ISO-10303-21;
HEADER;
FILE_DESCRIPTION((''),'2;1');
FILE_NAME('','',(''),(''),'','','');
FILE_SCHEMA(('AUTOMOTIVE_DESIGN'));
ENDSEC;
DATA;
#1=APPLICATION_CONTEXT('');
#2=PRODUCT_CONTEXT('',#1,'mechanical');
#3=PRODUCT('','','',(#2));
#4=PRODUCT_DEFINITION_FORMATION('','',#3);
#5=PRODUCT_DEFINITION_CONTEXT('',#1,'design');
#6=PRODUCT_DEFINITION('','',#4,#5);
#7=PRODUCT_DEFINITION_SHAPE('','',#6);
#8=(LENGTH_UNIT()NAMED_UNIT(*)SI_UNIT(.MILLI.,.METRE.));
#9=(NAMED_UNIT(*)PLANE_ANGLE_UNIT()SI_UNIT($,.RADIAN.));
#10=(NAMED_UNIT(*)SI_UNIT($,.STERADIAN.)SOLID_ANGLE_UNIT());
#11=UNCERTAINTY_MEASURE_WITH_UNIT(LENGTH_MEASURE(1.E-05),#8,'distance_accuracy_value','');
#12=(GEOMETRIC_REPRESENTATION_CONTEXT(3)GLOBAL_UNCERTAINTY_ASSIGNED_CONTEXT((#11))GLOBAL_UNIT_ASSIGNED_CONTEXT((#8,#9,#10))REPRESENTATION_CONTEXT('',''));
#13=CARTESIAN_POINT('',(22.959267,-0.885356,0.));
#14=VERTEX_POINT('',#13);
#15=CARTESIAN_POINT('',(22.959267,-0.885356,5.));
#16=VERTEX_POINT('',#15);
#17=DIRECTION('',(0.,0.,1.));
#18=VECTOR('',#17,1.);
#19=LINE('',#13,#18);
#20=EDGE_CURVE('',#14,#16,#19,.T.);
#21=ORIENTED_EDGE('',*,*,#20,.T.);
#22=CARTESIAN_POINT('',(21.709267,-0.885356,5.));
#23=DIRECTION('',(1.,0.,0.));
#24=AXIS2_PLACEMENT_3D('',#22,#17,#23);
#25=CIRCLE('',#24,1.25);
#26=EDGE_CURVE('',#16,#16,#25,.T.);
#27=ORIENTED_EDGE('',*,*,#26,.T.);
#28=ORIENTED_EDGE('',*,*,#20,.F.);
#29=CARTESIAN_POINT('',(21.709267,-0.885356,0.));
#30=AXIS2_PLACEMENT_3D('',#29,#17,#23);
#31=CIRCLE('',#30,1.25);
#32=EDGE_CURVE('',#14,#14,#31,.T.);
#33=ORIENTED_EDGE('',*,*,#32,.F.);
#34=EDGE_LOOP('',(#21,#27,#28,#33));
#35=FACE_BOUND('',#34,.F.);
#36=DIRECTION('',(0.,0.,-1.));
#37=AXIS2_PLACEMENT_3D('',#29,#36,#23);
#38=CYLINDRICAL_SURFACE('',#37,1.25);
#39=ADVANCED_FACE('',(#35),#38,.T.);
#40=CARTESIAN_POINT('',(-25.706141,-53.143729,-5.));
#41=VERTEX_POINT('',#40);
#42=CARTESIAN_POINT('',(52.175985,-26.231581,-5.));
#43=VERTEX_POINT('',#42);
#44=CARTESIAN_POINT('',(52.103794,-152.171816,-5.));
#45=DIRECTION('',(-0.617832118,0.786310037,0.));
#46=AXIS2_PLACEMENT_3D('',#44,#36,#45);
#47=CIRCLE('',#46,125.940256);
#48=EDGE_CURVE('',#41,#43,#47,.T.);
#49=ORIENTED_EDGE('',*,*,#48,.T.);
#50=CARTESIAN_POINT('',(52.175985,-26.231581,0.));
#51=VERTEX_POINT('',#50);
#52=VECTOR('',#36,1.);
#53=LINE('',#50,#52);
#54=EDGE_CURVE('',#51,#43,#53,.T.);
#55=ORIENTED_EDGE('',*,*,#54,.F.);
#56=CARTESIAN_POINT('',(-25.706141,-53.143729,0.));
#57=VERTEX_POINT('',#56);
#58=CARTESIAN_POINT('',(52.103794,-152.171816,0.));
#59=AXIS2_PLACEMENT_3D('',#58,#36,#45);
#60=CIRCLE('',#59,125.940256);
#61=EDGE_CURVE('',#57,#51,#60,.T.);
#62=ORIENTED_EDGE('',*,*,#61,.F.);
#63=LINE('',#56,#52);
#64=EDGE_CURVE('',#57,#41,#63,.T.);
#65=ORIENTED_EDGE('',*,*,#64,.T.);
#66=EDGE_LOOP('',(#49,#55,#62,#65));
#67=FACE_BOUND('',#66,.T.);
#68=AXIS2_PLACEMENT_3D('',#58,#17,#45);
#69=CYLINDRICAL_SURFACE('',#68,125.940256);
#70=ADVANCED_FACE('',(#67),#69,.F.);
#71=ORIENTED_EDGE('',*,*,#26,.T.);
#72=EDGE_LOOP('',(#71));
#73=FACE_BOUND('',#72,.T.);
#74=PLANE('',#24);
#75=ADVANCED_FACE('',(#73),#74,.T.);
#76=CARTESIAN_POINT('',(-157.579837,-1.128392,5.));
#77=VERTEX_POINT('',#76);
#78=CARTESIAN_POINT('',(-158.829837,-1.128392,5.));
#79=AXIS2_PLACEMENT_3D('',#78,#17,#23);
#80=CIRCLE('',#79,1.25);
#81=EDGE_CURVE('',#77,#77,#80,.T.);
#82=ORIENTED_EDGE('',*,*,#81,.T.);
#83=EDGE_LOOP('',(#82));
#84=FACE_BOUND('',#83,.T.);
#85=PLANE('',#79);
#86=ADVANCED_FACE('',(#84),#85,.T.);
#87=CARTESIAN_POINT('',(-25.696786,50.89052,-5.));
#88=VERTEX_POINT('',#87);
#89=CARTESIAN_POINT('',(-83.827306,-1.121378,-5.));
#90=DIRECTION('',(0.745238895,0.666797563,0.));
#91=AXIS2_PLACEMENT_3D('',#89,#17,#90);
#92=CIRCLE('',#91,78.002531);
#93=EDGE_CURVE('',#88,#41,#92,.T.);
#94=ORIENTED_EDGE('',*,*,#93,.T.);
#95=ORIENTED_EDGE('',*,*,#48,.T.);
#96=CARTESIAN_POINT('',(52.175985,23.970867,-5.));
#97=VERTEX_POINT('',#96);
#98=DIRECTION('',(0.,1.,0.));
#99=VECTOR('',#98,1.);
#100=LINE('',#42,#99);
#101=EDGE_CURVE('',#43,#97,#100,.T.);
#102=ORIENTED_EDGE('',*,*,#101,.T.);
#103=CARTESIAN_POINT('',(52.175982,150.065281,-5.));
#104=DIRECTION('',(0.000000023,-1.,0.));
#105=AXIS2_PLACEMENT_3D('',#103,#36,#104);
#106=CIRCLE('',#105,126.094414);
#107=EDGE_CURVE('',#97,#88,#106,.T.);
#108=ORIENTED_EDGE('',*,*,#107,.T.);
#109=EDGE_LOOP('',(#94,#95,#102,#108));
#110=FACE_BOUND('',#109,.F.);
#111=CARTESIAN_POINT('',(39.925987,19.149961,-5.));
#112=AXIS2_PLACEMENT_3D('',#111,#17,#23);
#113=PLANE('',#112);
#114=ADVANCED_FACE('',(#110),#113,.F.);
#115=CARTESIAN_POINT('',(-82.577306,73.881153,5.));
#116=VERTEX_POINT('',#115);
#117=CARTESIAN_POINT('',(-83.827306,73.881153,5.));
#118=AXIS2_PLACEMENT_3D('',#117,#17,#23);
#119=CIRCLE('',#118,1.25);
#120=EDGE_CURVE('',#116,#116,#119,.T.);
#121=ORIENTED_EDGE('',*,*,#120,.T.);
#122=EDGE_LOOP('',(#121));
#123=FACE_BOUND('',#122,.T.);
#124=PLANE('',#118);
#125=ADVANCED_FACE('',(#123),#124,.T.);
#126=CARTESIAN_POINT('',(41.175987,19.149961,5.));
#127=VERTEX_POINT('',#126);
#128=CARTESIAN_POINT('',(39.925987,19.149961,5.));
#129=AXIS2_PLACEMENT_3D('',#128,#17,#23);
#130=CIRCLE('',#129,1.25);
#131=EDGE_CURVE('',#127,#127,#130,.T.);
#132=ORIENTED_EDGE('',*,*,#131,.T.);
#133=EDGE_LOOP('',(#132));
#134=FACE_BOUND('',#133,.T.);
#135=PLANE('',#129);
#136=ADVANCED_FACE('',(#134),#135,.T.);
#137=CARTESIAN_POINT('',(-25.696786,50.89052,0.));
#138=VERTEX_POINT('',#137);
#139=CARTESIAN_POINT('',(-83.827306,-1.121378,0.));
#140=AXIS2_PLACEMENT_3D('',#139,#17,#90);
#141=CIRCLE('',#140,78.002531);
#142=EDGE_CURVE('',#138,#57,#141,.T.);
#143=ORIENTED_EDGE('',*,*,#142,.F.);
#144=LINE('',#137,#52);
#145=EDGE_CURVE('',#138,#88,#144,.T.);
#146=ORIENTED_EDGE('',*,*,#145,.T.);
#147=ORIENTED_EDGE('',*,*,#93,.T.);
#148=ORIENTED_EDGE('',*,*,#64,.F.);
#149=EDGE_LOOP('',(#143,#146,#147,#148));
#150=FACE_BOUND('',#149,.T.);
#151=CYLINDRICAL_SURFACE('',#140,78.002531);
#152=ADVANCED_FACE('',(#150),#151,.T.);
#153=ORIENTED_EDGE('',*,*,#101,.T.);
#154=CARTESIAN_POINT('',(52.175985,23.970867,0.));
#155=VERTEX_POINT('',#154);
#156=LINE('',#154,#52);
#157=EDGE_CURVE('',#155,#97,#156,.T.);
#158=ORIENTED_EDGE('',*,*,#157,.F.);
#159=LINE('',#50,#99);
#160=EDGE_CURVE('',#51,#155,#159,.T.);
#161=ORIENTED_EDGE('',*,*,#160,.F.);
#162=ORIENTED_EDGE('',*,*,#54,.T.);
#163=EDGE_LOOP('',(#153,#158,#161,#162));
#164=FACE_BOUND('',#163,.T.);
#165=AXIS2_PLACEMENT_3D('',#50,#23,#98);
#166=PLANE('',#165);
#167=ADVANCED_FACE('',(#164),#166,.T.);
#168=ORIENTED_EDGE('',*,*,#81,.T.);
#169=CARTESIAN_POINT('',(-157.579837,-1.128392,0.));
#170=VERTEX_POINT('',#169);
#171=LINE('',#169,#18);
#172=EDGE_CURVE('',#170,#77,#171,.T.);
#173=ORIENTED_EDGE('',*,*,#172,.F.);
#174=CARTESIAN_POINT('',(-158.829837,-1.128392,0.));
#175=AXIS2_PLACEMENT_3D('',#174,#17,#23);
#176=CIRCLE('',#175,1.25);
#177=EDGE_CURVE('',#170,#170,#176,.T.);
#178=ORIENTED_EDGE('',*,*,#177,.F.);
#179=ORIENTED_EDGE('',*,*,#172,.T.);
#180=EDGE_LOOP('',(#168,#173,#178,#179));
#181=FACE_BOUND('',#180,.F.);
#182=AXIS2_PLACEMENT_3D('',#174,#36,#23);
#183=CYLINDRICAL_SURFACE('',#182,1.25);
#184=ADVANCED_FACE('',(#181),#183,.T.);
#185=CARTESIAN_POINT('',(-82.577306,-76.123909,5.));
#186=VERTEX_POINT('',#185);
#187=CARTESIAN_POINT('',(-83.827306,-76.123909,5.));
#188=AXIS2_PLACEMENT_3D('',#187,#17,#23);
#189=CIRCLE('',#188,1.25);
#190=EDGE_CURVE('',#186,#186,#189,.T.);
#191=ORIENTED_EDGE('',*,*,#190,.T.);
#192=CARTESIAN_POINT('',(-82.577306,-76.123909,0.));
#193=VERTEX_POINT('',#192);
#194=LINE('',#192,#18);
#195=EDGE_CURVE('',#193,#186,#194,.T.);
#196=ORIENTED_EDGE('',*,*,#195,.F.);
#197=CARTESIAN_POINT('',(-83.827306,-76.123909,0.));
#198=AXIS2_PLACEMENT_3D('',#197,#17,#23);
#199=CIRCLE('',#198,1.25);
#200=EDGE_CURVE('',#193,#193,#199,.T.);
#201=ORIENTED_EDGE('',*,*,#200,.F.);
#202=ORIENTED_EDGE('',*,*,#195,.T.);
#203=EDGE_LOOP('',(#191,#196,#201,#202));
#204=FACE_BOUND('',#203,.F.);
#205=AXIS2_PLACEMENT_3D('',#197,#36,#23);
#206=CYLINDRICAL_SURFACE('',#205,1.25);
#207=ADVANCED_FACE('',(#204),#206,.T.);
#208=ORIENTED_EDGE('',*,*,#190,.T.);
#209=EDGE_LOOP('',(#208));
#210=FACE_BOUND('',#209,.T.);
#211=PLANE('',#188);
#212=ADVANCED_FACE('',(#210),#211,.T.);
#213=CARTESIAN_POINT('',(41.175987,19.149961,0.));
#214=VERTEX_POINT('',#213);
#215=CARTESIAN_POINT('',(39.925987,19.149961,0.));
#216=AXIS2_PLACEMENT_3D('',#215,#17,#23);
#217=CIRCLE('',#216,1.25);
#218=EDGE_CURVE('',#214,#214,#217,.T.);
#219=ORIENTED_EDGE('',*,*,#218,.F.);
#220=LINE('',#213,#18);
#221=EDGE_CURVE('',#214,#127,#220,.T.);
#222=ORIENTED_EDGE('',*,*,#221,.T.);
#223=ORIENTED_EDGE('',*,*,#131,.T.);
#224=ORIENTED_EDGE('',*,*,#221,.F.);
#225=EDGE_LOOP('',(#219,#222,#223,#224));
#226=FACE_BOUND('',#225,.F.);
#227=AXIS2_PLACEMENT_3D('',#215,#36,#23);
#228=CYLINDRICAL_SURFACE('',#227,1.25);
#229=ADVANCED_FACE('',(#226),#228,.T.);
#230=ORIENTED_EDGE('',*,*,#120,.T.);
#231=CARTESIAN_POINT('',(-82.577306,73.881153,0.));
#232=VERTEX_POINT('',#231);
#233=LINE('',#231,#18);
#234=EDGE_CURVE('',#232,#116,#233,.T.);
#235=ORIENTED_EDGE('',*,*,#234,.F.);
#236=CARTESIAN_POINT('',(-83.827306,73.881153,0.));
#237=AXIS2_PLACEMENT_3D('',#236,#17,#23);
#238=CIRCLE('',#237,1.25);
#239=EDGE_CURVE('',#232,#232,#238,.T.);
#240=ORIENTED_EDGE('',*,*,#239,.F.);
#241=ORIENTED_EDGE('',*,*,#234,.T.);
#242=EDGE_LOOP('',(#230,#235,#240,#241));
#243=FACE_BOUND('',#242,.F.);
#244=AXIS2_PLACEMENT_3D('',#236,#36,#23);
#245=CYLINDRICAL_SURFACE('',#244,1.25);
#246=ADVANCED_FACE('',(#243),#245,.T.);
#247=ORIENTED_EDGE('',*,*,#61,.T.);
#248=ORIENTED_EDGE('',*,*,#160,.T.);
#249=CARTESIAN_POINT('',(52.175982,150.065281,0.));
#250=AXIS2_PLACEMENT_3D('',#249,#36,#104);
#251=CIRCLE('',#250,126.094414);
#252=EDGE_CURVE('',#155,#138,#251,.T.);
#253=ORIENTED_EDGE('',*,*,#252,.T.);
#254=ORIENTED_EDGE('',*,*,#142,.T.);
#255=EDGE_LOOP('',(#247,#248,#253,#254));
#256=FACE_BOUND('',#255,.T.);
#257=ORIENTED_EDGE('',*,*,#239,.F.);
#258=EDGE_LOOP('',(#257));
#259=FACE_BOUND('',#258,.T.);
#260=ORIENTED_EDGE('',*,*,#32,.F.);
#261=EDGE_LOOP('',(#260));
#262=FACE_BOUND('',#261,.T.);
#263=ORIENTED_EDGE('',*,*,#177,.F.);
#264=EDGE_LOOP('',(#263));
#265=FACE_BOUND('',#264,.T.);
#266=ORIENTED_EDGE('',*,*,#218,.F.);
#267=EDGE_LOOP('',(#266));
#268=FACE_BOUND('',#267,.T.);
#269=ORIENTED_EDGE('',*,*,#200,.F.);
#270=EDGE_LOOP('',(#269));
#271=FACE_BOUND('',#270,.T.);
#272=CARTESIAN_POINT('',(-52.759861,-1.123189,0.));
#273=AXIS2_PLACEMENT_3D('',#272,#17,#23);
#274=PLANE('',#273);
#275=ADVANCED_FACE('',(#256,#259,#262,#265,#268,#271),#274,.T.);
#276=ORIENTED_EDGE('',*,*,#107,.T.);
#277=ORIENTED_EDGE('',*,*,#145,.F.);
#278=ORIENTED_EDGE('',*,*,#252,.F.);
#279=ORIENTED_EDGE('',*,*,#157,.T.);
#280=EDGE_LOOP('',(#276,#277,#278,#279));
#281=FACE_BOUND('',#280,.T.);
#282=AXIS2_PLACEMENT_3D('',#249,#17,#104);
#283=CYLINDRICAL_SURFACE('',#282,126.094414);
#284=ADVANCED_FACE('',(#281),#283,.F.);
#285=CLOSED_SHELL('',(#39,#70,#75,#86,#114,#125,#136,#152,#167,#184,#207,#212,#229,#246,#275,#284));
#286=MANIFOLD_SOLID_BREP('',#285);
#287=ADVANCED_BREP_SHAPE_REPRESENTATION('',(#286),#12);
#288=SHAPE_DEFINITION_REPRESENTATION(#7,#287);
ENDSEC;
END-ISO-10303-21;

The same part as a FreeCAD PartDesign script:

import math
import FreeCAD as App
import Part
import Sketcher
from FreeCAD import Vector

doc = App.newDocument("Part")
body = doc.addObject("PartDesign::Body", "Body")

sketch1 = body.newObject("Sketcher::SketchObject", "Sketch")
sketch1.AttachmentSupport = (doc.getObject("XY_Plane"), [""])
sketch1.MapMode = "FlatFace"
sketch1.addGeometry([
    Part.ArcOfCircle(Part.Circle(Vector(52.2, 150.1, 0), Vector(0, 0, 1), 126.1), math.radians(-128), math.radians(-90)),
    Part.ArcOfCircle(Part.Circle(Vector(-83.8, -1.1, 0), Vector(0, 0, 1), 78), math.radians(42), math.radians(318)),
    Part.ArcOfCircle(Part.Circle(Vector(52.1, -152.2, 0), Vector(0, 0, 1), 125.9), math.radians(90), math.radians(128)),
    Part.LineSegment(Vector(52.2, -26.2, 0), Vector(52.2, 24, 0)),
    Part.Circle(Vector(-83.8, -76.1, 0), Vector(0, 0, 1), 1.2),
    Part.Circle(Vector(-158.8, -1.1, 0), Vector(0, 0, 1), 1.2),
    Part.Circle(Vector(-83.8, 73.9, 0), Vector(0, 0, 1), 1.2),
    Part.Circle(Vector(21.7, -0.9, 0), Vector(0, 0, 1), 1.2),
    Part.Circle(Vector(39.9, 19.1, 0), Vector(0, 0, 1), 1.2),
], False)
sketch1.addConstraint([
    Sketcher.Constraint("Coincident", 0, 1, 1, 1),
    Sketcher.Constraint("Coincident", 1, 2, 2, 2),
    Sketcher.Constraint("Coincident", 2, 1, 3, 1),
    Sketcher.Constraint("Coincident", 3, 2, 0, 2),
    Sketcher.Constraint("Vertical", 3),
    Sketcher.Constraint("Equal", 4, 5),
    Sketcher.Constraint("Equal", 5, 6),
    Sketcher.Constraint("Equal", 6, 7),
    Sketcher.Constraint("Equal", 7, 8),
    Sketcher.Constraint("Vertical", 1, 3, 4, 3),
    Sketcher.Constraint("Vertical", 4, 3, 6, 3),
    Sketcher.Constraint("Diameter", 4, 2.5),
    Sketcher.Constraint("Radius", 1, 78.002531),
    Sketcher.Constraint("DistanceX", 8, 3, 2, 1, 12.249998),
    Sketcher.Constraint("Radius", 0, 126.094414),
    Sketcher.Constraint("Radius", 2, 125.940256),
    Sketcher.Constraint("DistanceX", 1, 3, 2, 3, 135.9311),
    Sketcher.Constraint("DistanceY", 2, 1, 0, 1, 77.122101),
    Sketcher.Constraint("DistanceY", 3, 1, 3, 2, 50.202448),
    Sketcher.Constraint("DistanceY", -1, 1, 0, 3, 150.065281),
    Sketcher.Constraint("DistanceY", 4, 3, -1, 1, 76.123909),
    Sketcher.Constraint("DistanceY", -1, 1, 8, 3, 19.149961),
    Sketcher.Constraint("DistanceX", 1, 2, -1, 1, 25.706141),
    Sketcher.Constraint("DistanceY", 1, 2, -1, 1, 53.143729),
    Sketcher.Constraint("DistanceX", 5, 3, 1, 3, 75.002531),
    Sketcher.Constraint("DistanceY", 1, 3, 6, 3, 75.002531),
    Sketcher.Constraint("DistanceY", 1, 3, 7, 3, 0.236022),
    Sketcher.Constraint("DistanceX", 7, 3, 8, 3, 18.21672),
    Sketcher.Constraint("DistanceX", 1, 2, 7, 3, 47.415408),
    Sketcher.Constraint("DistanceY", 5, 3, -1, 1, 1.128392),
])
pad1 = body.newObject("PartDesign::Pad", "Pad")
pad1.Profile = sketch1
pad1.Length = 5
pad1.Reversed = True
body2 = doc.addObject("PartDesign::Body", "Body001")
body2.AllowCompound = True

sketch2 = body2.newObject("Sketcher::SketchObject", "Sketch001")
sketch2.AttachmentSupport = (doc.getObject("XY_Plane001"), [""])
sketch2.MapMode = "FlatFace"
sketch2.addGeometry([
    Part.Circle(Vector(39.9, 19.1, 0), Vector(0, 0, 1), 1.2),
    Part.Circle(Vector(21.7, -0.9, 0), Vector(0, 0, 1), 1.2),
    Part.Circle(Vector(-83.8, 73.9, 0), Vector(0, 0, 1), 1.2),
    Part.Circle(Vector(-83.8, -76.1, 0), Vector(0, 0, 1), 1.2),
    Part.Circle(Vector(-158.8, -1.1, 0), Vector(0, 0, 1), 1.2),
], False)
sketch2.addConstraint([
    Sketcher.Constraint("Equal", 0, 1),
    Sketcher.Constraint("Equal", 1, 2),
    Sketcher.Constraint("Equal", 2, 3),
    Sketcher.Constraint("Equal", 3, 4),
    Sketcher.Constraint("Vertical", 2, 3, 3, 3),
    Sketcher.Constraint("Diameter", 0, 2.5),
    Sketcher.Constraint("DistanceY", -1, 1, 0, 3, 19.149961),
    Sketcher.Constraint("DistanceY", 3, 3, -1, 1, 76.123909),
    Sketcher.Constraint("DistanceX", 1, 3, 0, 3, 18.21672),
    Sketcher.Constraint("DistanceY", 1, 3, 2, 3, 74.766509),
    Sketcher.Constraint("DistanceY", 0, 3, 2, 3, 54.731192),
    Sketcher.Constraint("DistanceX", 4, 3, 3, 3, 75.002531),
    Sketcher.Constraint("DistanceX", -1, 1, 0, 3, 39.925987),
    Sketcher.Constraint("DistanceX", 2, 3, -1, 1, 83.827306),
    Sketcher.Constraint("DistanceY", 4, 3, -1, 1, 1.128392),
])
pad2 = body2.newObject("PartDesign::Pad", "Pad001")
pad2.Profile = sketch2
pad2.Length = 5
body3 = doc.addObject("PartDesign::Body", "Body002")
body3.AllowCompound = True

sketch3 = body3.newObject("Sketcher::SketchObject", "Sketch002")
sketch3.AttachmentSupport = (doc.getObject("XY_Plane002"), [""])
sketch3.MapMode = "FlatFace"
sketch3.addGeometry([
    Part.Circle(Vector(-158.8, -1.1, 0), Vector(0, 0, 1), 1.2),
    Part.Circle(Vector(-83.8, -76.1, 0), Vector(0, 0, 1), 1.2),
    Part.Circle(Vector(-83.8, 73.9, 0), Vector(0, 0, 1), 1.2),
    Part.Circle(Vector(21.7, -0.9, 0), Vector(0, 0, 1), 1.2),
    Part.Circle(Vector(39.9, 19.1, 0), Vector(0, 0, 1), 1.2),
], False)
sketch3.addConstraint([
    Sketcher.Constraint("Equal", 0, 1),
    Sketcher.Constraint("Equal", 1, 2),
    Sketcher.Constraint("Equal", 2, 3),
    Sketcher.Constraint("Equal", 3, 4),
    Sketcher.Constraint("Vertical", 1, 3, 2, 3),
    Sketcher.Constraint("Diameter", 0, 2.5),
    Sketcher.Constraint("DistanceY", 1, 3, -1, 1, 76.123909),
    Sketcher.Constraint("DistanceY", -1, 1, 4, 3, 19.149961),
    Sketcher.Constraint("DistanceX", 0, 3, 1, 3, 75.002531),
    Sketcher.Constraint("DistanceY", 3, 3, 2, 3, 74.766509),
    Sketcher.Constraint("DistanceX", 3, 3, 4, 3, 18.21672),
    Sketcher.Constraint("DistanceY", 4, 3, 2, 3, 54.731192),
    Sketcher.Constraint("DistanceX", 0, 3, -1, 1, 158.829837),
    Sketcher.Constraint("DistanceY", 0, 3, -1, 1, 1.128392),
    Sketcher.Constraint("DistanceX", -1, 1, 3, 3, 21.709267),
])
pad3 = body3.newObject("PartDesign::Pad", "Pad002")
pad3.Profile = sketch3
pad3.Length = 5
pad3.Reversed = True
body.AllowCompound = True
doc.recompute()

boolean = body.newObject("PartDesign::Boolean", "Boolean")
boolean.Type = "Fuse"
boolean.addObjects([body2])
doc.recompute()

boolean2 = body.newObject("PartDesign::Boolean", "Boolean001")
boolean2.Type = "Fuse"
boolean2.addObjects([body3])

doc.recompute()
